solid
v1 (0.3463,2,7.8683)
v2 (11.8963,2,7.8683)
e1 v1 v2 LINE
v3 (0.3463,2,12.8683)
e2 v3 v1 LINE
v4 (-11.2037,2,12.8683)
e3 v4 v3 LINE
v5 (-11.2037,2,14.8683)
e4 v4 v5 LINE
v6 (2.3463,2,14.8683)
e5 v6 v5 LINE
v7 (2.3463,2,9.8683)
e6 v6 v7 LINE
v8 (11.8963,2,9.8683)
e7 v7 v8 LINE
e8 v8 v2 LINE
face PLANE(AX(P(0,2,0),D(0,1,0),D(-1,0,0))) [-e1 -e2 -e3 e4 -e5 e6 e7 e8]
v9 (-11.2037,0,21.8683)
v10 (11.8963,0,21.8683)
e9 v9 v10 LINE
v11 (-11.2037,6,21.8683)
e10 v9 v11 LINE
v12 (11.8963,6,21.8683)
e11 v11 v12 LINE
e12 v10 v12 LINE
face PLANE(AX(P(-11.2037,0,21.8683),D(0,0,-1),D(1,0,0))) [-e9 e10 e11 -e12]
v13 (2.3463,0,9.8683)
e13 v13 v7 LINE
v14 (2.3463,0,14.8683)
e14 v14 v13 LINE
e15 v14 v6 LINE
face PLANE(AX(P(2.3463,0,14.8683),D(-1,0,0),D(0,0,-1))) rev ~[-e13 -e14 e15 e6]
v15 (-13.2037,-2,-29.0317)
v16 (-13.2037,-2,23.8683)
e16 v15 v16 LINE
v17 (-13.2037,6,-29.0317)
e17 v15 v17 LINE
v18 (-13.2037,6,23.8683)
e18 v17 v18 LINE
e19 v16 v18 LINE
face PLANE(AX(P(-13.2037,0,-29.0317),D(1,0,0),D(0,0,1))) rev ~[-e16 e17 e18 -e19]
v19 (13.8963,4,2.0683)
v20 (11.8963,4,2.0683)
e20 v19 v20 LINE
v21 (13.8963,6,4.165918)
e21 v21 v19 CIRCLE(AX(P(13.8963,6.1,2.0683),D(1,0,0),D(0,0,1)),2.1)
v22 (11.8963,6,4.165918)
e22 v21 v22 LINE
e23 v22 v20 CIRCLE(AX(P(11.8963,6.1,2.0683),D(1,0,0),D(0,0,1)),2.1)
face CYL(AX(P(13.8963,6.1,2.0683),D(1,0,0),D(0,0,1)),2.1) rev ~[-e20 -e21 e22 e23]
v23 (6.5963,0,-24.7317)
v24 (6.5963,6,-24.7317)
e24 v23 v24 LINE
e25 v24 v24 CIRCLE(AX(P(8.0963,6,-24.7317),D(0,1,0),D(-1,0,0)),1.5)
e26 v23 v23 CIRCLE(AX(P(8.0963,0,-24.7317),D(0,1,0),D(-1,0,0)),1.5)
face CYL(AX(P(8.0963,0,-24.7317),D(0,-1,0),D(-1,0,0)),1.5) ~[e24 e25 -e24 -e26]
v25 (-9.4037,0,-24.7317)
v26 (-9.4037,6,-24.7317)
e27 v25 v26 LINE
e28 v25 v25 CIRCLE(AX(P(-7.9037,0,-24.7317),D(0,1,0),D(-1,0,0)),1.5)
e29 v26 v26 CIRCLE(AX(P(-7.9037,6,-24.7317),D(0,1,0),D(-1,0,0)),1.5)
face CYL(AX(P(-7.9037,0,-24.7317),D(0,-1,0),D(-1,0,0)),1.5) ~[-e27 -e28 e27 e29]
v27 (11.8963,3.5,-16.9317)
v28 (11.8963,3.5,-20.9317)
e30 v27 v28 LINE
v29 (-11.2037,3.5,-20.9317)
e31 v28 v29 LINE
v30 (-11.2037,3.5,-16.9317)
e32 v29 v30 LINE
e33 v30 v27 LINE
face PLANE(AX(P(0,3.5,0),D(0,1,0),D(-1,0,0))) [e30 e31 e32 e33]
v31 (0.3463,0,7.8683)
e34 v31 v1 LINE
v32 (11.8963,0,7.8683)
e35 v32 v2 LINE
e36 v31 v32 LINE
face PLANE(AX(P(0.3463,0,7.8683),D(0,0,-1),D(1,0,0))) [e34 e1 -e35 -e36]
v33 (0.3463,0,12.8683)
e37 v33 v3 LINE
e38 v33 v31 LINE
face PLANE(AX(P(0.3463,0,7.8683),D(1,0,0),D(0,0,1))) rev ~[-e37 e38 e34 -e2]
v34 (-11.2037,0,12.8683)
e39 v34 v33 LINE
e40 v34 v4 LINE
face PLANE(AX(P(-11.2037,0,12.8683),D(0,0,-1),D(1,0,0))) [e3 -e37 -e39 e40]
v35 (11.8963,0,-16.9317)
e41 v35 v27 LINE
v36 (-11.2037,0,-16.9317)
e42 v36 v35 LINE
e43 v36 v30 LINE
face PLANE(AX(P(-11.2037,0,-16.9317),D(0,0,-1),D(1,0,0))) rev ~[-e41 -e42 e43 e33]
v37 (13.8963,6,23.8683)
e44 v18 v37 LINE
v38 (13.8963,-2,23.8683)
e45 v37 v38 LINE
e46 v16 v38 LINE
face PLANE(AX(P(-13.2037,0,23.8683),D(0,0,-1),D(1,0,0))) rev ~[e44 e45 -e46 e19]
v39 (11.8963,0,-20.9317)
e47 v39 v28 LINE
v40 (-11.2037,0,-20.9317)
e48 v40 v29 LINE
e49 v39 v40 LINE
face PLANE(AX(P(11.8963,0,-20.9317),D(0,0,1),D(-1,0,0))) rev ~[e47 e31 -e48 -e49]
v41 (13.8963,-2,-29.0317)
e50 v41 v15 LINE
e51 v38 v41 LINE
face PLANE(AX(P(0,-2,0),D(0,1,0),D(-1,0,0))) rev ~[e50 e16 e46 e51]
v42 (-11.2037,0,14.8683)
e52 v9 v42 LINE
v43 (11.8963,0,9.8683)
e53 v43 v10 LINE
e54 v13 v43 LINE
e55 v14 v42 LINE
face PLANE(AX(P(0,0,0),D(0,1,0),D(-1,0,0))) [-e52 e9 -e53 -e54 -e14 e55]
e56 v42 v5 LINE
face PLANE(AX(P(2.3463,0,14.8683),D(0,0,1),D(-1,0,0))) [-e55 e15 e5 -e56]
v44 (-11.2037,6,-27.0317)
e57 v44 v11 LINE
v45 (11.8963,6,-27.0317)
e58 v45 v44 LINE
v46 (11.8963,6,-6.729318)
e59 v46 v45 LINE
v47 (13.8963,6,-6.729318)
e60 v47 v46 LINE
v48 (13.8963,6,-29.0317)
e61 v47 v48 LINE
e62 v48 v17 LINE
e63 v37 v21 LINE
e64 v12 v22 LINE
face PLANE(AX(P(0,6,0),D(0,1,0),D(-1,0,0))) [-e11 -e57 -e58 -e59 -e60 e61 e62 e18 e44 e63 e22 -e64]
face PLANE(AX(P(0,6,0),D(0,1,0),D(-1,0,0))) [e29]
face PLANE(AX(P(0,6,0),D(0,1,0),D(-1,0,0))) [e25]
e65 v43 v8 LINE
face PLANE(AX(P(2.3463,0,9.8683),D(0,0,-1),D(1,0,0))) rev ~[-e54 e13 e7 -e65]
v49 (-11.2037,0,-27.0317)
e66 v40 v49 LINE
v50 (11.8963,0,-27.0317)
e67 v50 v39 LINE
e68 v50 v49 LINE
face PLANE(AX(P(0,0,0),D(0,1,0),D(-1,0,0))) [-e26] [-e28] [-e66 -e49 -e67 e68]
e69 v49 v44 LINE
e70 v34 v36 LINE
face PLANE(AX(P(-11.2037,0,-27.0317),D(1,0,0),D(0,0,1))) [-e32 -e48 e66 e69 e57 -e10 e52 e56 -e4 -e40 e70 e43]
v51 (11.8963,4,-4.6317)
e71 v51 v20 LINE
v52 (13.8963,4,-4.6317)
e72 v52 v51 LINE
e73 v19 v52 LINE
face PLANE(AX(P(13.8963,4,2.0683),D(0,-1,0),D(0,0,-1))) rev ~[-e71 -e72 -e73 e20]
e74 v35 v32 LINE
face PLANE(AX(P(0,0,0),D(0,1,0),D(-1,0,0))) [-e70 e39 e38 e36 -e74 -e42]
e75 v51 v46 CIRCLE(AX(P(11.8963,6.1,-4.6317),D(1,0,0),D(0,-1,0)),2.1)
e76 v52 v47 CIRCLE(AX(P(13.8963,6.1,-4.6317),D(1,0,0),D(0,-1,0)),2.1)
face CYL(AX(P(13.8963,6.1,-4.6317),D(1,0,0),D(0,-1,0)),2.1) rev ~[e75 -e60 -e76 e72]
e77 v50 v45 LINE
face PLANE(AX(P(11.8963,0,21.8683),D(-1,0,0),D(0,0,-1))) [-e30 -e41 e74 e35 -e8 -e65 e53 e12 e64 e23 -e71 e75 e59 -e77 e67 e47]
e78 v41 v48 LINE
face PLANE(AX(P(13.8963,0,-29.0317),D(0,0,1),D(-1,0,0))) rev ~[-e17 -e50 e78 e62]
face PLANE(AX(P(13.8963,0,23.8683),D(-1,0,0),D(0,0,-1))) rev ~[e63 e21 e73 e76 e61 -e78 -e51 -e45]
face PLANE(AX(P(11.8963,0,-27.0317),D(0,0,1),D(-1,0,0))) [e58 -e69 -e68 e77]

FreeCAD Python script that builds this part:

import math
import FreeCAD as App
import Part
import Sketcher

V = App.Vector
Q = App.Units.Quantity


def add_polygon(sketch, points):
    """Adds a closed chain of lines whose ends are joined by coincident constraints."""
    first, n = sketch.GeometryCount, len(points)
    for a, b in zip(points, points[1:] + points[:1]):
        sketch.addGeometry(Part.LineSegment(App.Vector(*a, 0), App.Vector(*b, 0)), False)
    for i in range(n):
        sketch.addConstraint(Sketcher.Constraint("Coincident", first + i, 2, first + (i + 1) % n, 1))

doc = App.newDocument("Part")
body = doc.addObject("PartDesign::Body", "Body")

# Sketch on XZ plane
sketch1 = body.newObject("Sketcher::SketchObject", "Sketch")
sketch1.AttachmentSupport = (doc.getObject("XZ_Plane"), [""])
sketch1.MapMode = "FlatFace"
add_polygon(sketch1, [(13.8963, 23.8683), (13.8963, -29.0317), (-13.2037, -29.0317), (-13.2037, 23.8683)])  # lines 0-3
sketch1.addConstraint([
    Sketcher.Constraint("Vertical", 0),
    Sketcher.Constraint("Horizontal", 1),
    Sketcher.Constraint("Vertical", 2),
    Sketcher.Constraint("Horizontal", 3),
    Sketcher.Constraint("DistanceX", 1, 2, 1, 1, Q("27.1 mm")),
    Sketcher.Constraint("DistanceY", 0, 2, 0, 1, Q("52.9 mm")),
    Sketcher.Constraint("DistanceX", -1, 1, 0, 2, Q("13.8963 mm")),
    Sketcher.Constraint("DistanceY", 0, 2, -1, 1, Q("29.0317 mm")),
])
pad1 = body.newObject("PartDesign::Pad", "Pad")
pad1.Profile = sketch1
pad1.Length = 2

# Sketch on XZ plane
sketch2 = body.newObject("Sketcher::SketchObject", "Sketch001")
sketch2.AttachmentSupport = (doc.getObject("XZ_Plane"), [""])
sketch2.MapMode = "FlatFace"
sketch2.addGeometry(Part.Circle(V(8.0963, -24.7317, 0), V(0, 0, 1), 1.5), False)  # 0
sketch2.addGeometry(Part.Circle(V(-7.9037, -24.7317, 0), V(0, 0, 1), 1.5), False)  # 1
add_polygon(sketch2, [(13.8963, 23.8683), (13.8963, -29.0317), (-13.2037, -29.0317), (-13.2037, 23.8683)])  # lines 2-5
add_polygon(sketch2, [(-11.2037, -27.0317), (11.8963, -27.0317), (11.8963, 21.8683), (-11.2037, 21.8683)])  # lines 6-9
sketch2.addConstraint([
    Sketcher.Constraint("Vertical", 2),
    Sketcher.Constraint("Horizontal", 3),
    Sketcher.Constraint("Vertical", 4),
    Sketcher.Constraint("Horizontal", 5),
    Sketcher.Constraint("Horizontal", 6),
    Sketcher.Constraint("Vertical", 7),
    Sketcher.Constraint("Horizontal", 8),
    Sketcher.Constraint("Vertical", 9),
    Sketcher.Constraint("Equal", 0, 1),
    Sketcher.Constraint("Horizontal", 0, 3, 1, 3),
    Sketcher.Constraint("Diameter", 0, Q("3 mm")),
    Sketcher.Constraint("DistanceX", 6, 2, 2, 2, Q("2 mm")),
    Sketcher.Constraint("DistanceY", 2, 2, 6, 2, Q("2 mm")),
    Sketcher.Constraint("DistanceY", 7, 2, 5, 2, Q("2 mm")),
    Sketcher.Constraint("DistanceX", 4, 2, 8, 2, Q("2 mm")),
    Sketcher.Constraint("DistanceX", 3, 2, 3, 1, Q("27.1 mm")),
    Sketcher.Constraint("DistanceY", 2, 2, 2, 1, Q("52.9 mm")),
    Sketcher.Constraint("DistanceX", 1, 3, 0, 3, Q("16 mm")),
    Sketcher.Constraint("DistanceX", 0, 3, 2, 2, Q("5.8 mm")),
    Sketcher.Constraint("DistanceY", 2, 2, 0, 3, Q("4.3 mm")),
    Sketcher.Constraint("DistanceX", -1, 1, 0, 3, Q("8.0963 mm")),
    Sketcher.Constraint("DistanceY", 0, 3, -1, 1, Q("24.7317 mm")),
])
pad2 = body.newObject("PartDesign::Pad", "Pad001")
pad2.Profile = sketch2
pad2.Length = 6
pad2.Reversed = True

# Sketch on XZ plane
sketch3 = body.newObject("Sketcher::SketchObject", "Sketch002")
sketch3.AttachmentSupport = (doc.getObject("XZ_Plane"), [""])
sketch3.MapMode = "FlatFace"
add_polygon(sketch3, [(11.8963, 9.8683), (11.8963, 7.8683), (0.3463, 7.8683), (0.3463, 12.8683), (-11.2037, 12.8683), (-11.2037, 14.8683), (2.3463, 14.8683), (2.3463, 9.8683)])  # lines 0-7
sketch3.addConstraint([
    Sketcher.Constraint("Vertical", 0),
    Sketcher.Constraint("Horizontal", 1),
    Sketcher.Constraint("Vertical", 2),
    Sketcher.Constraint("Horizontal", 3),
    Sketcher.Constraint("Vertical", 4),
    Sketcher.Constraint("Horizontal", 5),
    Sketcher.Constraint("Vertical", 6),
    Sketcher.Constraint("Horizontal", 7),
    Sketcher.Constraint("Equal", 1, 3),
    Sketcher.Constraint("Equal", 0, 4),
    Sketcher.Constraint("DistanceY", 0, 2, 0, 1, Q("2 mm")),
    Sketcher.Constraint("DistanceX", 2, 2, 5, 2, Q("2 mm")),
    Sketcher.Constraint("DistanceY", 2, 1, 2, 2, Q("5 mm")),
    Sketcher.Constraint("DistanceX", 1, 2, 1, 1, Q("11.55 mm")),
    Sketcher.Constraint("DistanceX", -1, 1, 0, 2, Q("11.8963 mm")),
    Sketcher.Constraint("DistanceY", -1, 1, 0, 2, Q("7.8683 mm")),
])
pad3 = body.newObject("PartDesign::Pad", "Pad002")
pad3.Profile = sketch3
pad3.Length = 2
pad3.Reversed = True

# Sketch on XZ plane
sketch4 = body.newObject("Sketcher::SketchObject", "Sketch003")
sketch4.AttachmentSupport = (doc.getObject("XZ_Plane"), [""])
sketch4.MapMode = "FlatFace"
add_polygon(sketch4, [(11.8963, -16.9317), (11.8963, -20.9317), (-11.2037, -20.9317), (-11.2037, -16.9317)])  # lines 0-3
sketch4.addConstraint([
    Sketcher.Constraint("Vertical", 0),
    Sketcher.Constraint("Horizontal", 1),
    Sketcher.Constraint("Vertical", 2),
    Sketcher.Constraint("Horizontal", 3),
    Sketcher.Constraint("DistanceY", 0, 2, 0, 1, Q("4 mm")),
    Sketcher.Constraint("DistanceX", 1, 2, 1, 1, Q("23.1 mm")),
    Sketcher.Constraint("DistanceX", -1, 1, 0, 2, Q("11.8963 mm")),
    Sketcher.Constraint("DistanceY", 0, 2, -1, 1, Q("20.9317 mm")),
])
pad4 = body.newObject("PartDesign::Pad", "Pad003")
pad4.Profile = sketch4
pad4.Length = 3.5
pad4.Reversed = True

# Sketch on YZ plane
sketch5 = body.newObject("Sketcher::SketchObject", "Sketch004")
sketch5.AttachmentSupport = (doc.getObject("YZ_Plane"), [""])
sketch5.MapMode = "FlatFace"
sketch5.AttachmentOffset = App.Placement(V(0, 0, 13.8963), App.Rotation())
sketch5.addGeometry([
    Part.ArcOfCircle(Part.Circle(V(6.1, -4.6317, 0), V(0, 0, 1), 2.1), math.radians(180), math.radians(267.270597)),
    Part.LineSegment(V(6, -6.729318, 0), V(6, 4.165918, 0)),
    Part.ArcOfCircle(Part.Circle(V(6.1, 2.0683, 0), V(0, 0, 1), 2.1), math.radians(92.729403), math.radians(180)),
    Part.LineSegment(V(4, 2.0683, 0), V(4, -4.6317, 0)),
], False)
sketch5.addConstraint([
    Sketcher.Constraint("Coincident", 0, 2, 1, 1),
    Sketcher.Constraint("Coincident", 1, 2, 2, 1),
    Sketcher.Constraint("Tangent", 2, 2, 3, 1),
    Sketcher.Constraint("Tangent", 3, 2, 0, 1),
    Sketcher.Constraint("Vertical", 1),
    Sketcher.Constraint("Vertical", 3),
    Sketcher.Constraint("Equal", 0, 2),
    Sketcher.Constraint("Radius", 0, Q("2.1 mm")),
    Sketcher.Constraint("DistanceY", 3, 2, 3, 1, Q("6.7 mm")),
    Sketcher.Constraint("DistanceX", -1, 1, 0, 2, Q("6 mm")),
    Sketcher.Constraint("DistanceX", -1, 1, 2, 2, Q("4 mm")),
    Sketcher.Constraint("DistanceY", -1, 1, 1, 2, Q("4.166 mm")),
])
pocket1 = body.newObject("PartDesign::Pocket", "Pocket")
pocket1.Profile = sketch5
pocket1.Length = 6

doc.recompute()
